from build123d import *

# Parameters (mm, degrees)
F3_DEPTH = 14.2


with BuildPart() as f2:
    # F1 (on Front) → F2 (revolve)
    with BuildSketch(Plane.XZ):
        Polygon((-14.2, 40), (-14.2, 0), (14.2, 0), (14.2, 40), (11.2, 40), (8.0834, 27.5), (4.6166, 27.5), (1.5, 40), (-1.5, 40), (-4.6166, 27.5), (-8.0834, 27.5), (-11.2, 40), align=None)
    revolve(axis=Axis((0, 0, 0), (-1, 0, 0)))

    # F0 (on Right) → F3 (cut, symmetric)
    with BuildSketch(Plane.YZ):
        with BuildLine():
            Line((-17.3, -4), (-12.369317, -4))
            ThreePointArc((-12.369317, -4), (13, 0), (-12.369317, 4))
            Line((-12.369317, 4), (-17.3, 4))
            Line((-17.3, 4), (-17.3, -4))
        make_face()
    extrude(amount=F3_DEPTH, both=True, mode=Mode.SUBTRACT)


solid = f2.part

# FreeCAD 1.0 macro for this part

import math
import FreeCAD as App
import Part
import Sketcher

V = App.Vector
Q = App.Units.Quantity


def add_polygon(sketch, points):
    """Adds a closed chain of lines whose ends are joined by coincident constraints."""
    first, n = sketch.GeometryCount, len(points)
    for a, b in zip(points, points[1:] + points[:1]):
        sketch.addGeometry(Part.LineSegment(App.Vector(*a, 0), App.Vector(*b, 0)), False)
    for i in range(n):
        sketch.addConstraint(Sketcher.Constraint("Coincident", first + i, 2, first + (i + 1) % n, 1))

doc = App.newDocument("Part")
params = doc.addObject("Spreadsheet::Sheet", "Params")
for row, (alias, value) in enumerate([
    ("sketch1_width", "3 mm"),
    ("sketch1_height", "40 mm"),
    ("sketch1_width2", "28.4 mm"),
    ("revolution_angle", "360 deg"),
    ("sketch2_radius", "13 mm"),
    ("sketch2_height", "8 mm"),
    ("pocket1_length", "28.4 mm"),
], start=1):
    params.set(f"A{row}", alias)
    params.set(f"B{row}", "=" + value)
    params.setAlias(f"B{row}", alias)

body = doc.addObject("PartDesign::Body", "Body")

# Sketch on XZ plane
sketch1 = body.newObject("Sketcher::SketchObject", "Sketch")
sketch1.AttachmentSupport = (doc.getObject("XZ_Plane"), [""])
sketch1.MapMode = "FlatFace"
add_polygon(sketch1, [(-14.2, 40), (-14.2, 0), (14.2, 0), (14.2, 40), (11.2, 40), (8.1, 27.5), (4.6, 27.5), (1.5, 40), (-1.5, 40), (-4.6, 27.5), (-8.1, 27.5), (-11.2, 40)])  # lines 0-11
sketch1.addConstraint([
    Sketcher.Constraint("Vertical", 0),
    Sketcher.Constraint("Horizontal", 1),
    Sketcher.Constraint("Vertical", 2),
    Sketcher.Constraint("Horizontal", 3),
    Sketcher.Constraint("Horizontal", 5),
    Sketcher.Constraint("Horizontal", 7),
    Sketcher.Constraint("Horizontal", 9),
    Sketcher.Constraint("Horizontal", 11),
    Sketcher.Constraint("Symmetric", 0, 2, 1, 2, -1, 1),
    Sketcher.Constraint("Symmetric", 5, 2, 8, 2, -2),
    Sketcher.Constraint("Symmetric", 3, 2, 10, 2, -2),
    Sketcher.Constraint("Parallel", 4, 8),
    Sketcher.Constraint("Parallel", 6, 10),
    Sketcher.Constraint("Horizontal", 3, 2, 6, 2),
    Sketcher.Constraint("Equal", 3, 7),
    Sketcher.Constraint("Equal", 5, 9),
    Sketcher.Constraint("DistanceX", 3, 2, 3, 1, Q("3 mm")),
    Sketcher.Constraint("DistanceY", 0, 2, 0, 1, Q("40 mm")),
    Sketcher.Constraint("Angle", 4, Q("-104 deg")),
    Sketcher.Constraint("DistanceX", 1, 1, 1, 2, Q("28.4 mm")),
    Sketcher.Constraint("DistanceY", -1, 1, 4, 2, Q("27.5 mm")),
])
sketch1.setExpression("Constraints[28]", "Params.sketch1_width")
sketch1.setExpression("Constraints[29]", "Params.sketch1_height")
sketch1.setExpression("Constraints[31]", "Params.sketch1_width2")
revolution = body.newObject("PartDesign::Revolution", "Revolution")
revolution.Profile = sketch1
revolution.ReferenceAxis = (sketch1, ["H_Axis"])
revolution.setExpression("Angle", "Params.revolution_angle")

# Sketch on YZ plane
sketch2 = body.newObject("Sketcher::SketchObject", "Sketch001")
sketch2.AttachmentSupport = (doc.getObject("YZ_Plane"), [""])
sketch2.MapMode = "FlatFace"
sketch2.addGeometry([
    Part.LineSegment(V(-17.3, -4, 0), V(-12.4, -4, 0)),
    Part.ArcOfCircle(Part.Circle(V(0, 0, 0), V(0, 0, 1), 13), math.radians(-162), math.radians(162)),
    Part.LineSegment(V(-12.4, 4, 0), V(-17.3, 4, 0)),
    Part.LineSegment(V(-17.3, 4, 0), V(-17.3, -4, 0)),
], False)
sketch2.addConstraint([
    Sketcher.Constraint("Coincident", 0, 2, 1, 1),
    Sketcher.Constraint("Coincident", 1, 2, 2, 1),
    Sketcher.Constraint("Coincident", 2, 2, 3, 1),
    Sketcher.Constraint("Coincident", 3, 2, 0, 1),
    Sketcher.Constraint("Horizontal", 0),
    Sketcher.Constraint("Horizontal", 2),
    Sketcher.Constraint("Vertical", 3),
    Sketcher.Constraint("Coincident", 1, 3, -1, 1),
    Sketcher.Constraint("Vertical", 0, 2, 1, 2),
    Sketcher.Constraint("Radius", 1, Q("13 mm")),
    Sketcher.Constraint("DistanceY", 3, 2, 3, 1, Q("8 mm")),
    Sketcher.Constraint("DistanceX", 2, 2, -1, 1, Q("17.3 mm")),
])
sketch2.setExpression("Constraints[9]", "Params.sketch2_radius")
sketch2.setExpression("Constraints[10]", "Params.sketch2_height")
pocket1 = body.newObject("PartDesign::Pocket", "Pocket")
pocket1.Profile = sketch2
pocket1.setExpression("Length", "Params.pocket1_length")
pocket1.Midplane = True

doc.recompute()
